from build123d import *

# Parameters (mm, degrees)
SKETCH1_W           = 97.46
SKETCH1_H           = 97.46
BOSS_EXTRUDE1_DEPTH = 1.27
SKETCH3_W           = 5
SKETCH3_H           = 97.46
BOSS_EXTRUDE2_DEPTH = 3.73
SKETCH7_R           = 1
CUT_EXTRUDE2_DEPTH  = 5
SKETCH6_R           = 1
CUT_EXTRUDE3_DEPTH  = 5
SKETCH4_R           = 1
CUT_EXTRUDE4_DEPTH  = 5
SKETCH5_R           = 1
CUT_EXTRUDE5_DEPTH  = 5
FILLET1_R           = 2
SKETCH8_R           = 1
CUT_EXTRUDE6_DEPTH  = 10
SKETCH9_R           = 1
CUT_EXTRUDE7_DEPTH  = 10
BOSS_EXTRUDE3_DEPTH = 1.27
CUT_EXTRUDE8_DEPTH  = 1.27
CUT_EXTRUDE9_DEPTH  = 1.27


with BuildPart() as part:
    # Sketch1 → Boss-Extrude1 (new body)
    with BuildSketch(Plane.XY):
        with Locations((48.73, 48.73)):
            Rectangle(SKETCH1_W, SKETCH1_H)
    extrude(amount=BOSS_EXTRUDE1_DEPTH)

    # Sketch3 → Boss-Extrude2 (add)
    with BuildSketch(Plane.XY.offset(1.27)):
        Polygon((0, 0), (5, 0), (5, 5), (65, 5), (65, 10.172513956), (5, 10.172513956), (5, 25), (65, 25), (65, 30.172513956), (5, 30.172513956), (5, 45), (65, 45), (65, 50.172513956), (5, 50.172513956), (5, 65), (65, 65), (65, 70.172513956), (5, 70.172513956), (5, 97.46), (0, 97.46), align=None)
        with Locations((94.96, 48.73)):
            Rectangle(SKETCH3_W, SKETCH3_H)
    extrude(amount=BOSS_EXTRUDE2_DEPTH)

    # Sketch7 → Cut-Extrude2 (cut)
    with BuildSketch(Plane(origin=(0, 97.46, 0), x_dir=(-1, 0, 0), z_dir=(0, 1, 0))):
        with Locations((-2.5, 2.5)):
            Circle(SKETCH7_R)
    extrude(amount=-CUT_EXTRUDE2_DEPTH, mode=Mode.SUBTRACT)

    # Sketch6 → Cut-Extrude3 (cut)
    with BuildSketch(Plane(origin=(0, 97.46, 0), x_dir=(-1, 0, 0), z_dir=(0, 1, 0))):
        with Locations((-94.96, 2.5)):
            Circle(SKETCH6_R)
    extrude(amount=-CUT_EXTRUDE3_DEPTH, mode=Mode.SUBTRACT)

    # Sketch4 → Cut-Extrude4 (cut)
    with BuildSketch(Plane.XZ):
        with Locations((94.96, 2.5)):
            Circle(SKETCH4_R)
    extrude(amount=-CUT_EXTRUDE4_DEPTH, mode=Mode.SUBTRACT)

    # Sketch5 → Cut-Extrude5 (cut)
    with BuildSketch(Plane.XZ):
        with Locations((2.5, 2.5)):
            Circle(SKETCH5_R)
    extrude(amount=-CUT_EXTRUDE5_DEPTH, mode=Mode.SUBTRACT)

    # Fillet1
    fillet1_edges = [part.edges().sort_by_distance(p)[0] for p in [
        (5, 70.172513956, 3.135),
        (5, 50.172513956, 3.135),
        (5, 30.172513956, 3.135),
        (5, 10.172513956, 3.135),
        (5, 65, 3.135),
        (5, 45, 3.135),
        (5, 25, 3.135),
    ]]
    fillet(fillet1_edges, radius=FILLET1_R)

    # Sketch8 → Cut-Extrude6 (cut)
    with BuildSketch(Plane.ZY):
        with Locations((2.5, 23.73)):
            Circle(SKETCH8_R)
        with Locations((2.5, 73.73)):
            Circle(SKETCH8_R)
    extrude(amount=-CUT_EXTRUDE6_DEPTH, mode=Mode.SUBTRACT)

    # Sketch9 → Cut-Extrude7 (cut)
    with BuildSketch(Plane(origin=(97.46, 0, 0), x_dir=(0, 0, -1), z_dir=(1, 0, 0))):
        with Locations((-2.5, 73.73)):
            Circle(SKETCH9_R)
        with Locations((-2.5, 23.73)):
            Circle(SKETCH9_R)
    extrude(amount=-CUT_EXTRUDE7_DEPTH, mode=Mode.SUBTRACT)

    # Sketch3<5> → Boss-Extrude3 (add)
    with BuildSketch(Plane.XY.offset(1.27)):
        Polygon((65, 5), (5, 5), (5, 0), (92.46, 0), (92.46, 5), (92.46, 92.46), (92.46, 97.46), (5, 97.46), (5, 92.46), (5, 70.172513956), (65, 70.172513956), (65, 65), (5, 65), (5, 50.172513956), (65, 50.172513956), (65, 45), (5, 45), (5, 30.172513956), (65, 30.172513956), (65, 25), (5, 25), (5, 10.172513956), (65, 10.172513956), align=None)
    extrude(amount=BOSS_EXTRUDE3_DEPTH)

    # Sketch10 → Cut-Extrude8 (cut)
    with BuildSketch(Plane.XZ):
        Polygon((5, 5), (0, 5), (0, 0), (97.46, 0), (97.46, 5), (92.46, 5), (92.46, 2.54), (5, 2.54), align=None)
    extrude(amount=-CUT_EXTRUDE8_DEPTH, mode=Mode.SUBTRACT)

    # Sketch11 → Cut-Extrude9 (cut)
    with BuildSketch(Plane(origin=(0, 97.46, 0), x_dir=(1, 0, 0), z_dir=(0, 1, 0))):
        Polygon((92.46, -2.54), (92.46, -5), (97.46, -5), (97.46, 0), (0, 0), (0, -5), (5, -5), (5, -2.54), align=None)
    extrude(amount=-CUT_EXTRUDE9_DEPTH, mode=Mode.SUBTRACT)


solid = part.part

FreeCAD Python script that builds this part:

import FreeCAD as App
import Part
import Sketcher

V = App.Vector
Q = App.Units.Quantity


def edges_at(feature, points):
    """Names of the edges that pass closest to the given points."""
    edges = feature.Shape.Edges
    near = lambda p: min(range(len(edges)), key=lambda i: edges[i].distToShape(Part.Vertex(*p))[0])
    return sorted({f"Edge{near(p) + 1}" for p in points})


def add_polygon(sketch, points):
    """Adds a closed chain of lines whose ends are joined by coincident constraints."""
    first, n = sketch.GeometryCount, len(points)
    for a, b in zip(points, points[1:] + points[:1]):
        sketch.addGeometry(Part.LineSegment(App.Vector(*a, 0), App.Vector(*b, 0)), False)
    for i in range(n):
        sketch.addConstraint(Sketcher.Constraint("Coincident", first + i, 2, first + (i + 1) % n, 1))

doc = App.newDocument("Part")
params = doc.addObject("Spreadsheet::Sheet", "Params")
for row, (alias, value) in enumerate([
    ("sketch1_width", "97.46 mm"),
    ("pad1_length", "1.27 mm"),
    ("sketch2_width", "5 mm"),
    ("sketch2_width2", "60 mm"),
    ("sketch2_height", "97.46 mm"),
    ("pad2_length", "3.73 mm"),
    ("sketch3_diameter", "2 mm"),
    ("pocket1_length", "5 mm"),
    ("sketch4_diameter", "2 mm"),
    ("pocket2_length", "5 mm"),
    ("sketch5_diameter", "2 mm"),
    ("pocket3_length", "5 mm"),
    ("sketch6_diameter", "2 mm"),
    ("pocket4_length", "5 mm"),
    ("fillet_radius", "2 mm"),
    ("sketch7_diameter", "2 mm"),
    ("pocket5_length", "10 mm"),
    ("sketch8_diameter", "2 mm"),
    ("pocket6_length", "10 mm"),
    ("sketch9_width", "60 mm"),
    ("sketch9_height", "5 mm"),
    ("sketch9_width2", "87.46 mm"),
    ("sketch9_height2", "97.46 mm"),
    ("pad3_length", "1.27 mm"),
    ("sketch10_width", "5 mm"),
    ("sketch10_width2", "97.46 mm"),
    ("sketch10_height", "2.46 mm"),
    ("pocket7_length", "1.27 mm"),
    ("sketch11_width", "5 mm"),
    ("sketch11_width2", "97.46 mm"),
    ("sketch11_height", "2.46 mm"),
    ("pocket8_length", "1.27 mm"),
], start=1):
    params.set(f"A{row}", alias)
    params.set(f"B{row}", "=" + value)
    params.setAlias(f"B{row}", alias)

body = doc.addObject("PartDesign::Body", "Body")

sketch1 = body.newObject("Sketcher::SketchObject", "Sketch")
sketch1.AttachmentSupport = (doc.getObject("XY_Plane"), [""])
sketch1.MapMode = "FlatFace"
add_polygon(sketch1, [(0, 97), (0, 0), (97, 0), (97, 97)])
sketch1.addConstraint([
    Sketcher.Constraint("Vertical", 0),
    Sketcher.Constraint("Horizontal", 1),
    Sketcher.Constraint("Vertical", 2),
    Sketcher.Constraint("Horizontal", 3),
    Sketcher.Constraint("Coincident", 0, 2, -1, 1),
    Sketcher.Constraint("Equal", 3, 0),
    Sketcher.Constraint("DistanceX", 1, 1, 1, 2, Q("97.46 mm")),
])
sketch1.setExpression("Constraints[10]", "Params.sketch1_width")
pad1 = body.newObject("PartDesign::Pad", "Pad")
pad1.Profile = sketch1
pad1.setExpression("Length", "Params.pad1_length")

sketch2 = body.newObject("Sketcher::SketchObject", "Sketch001")
sketch2.AttachmentSupport = (doc.getObject("XY_Plane"), [""])
sketch2.MapMode = "FlatFace"
sketch2.AttachmentOffset = App.Placement(V(0, 0, 1.27), App.Rotation())
add_polygon(sketch2, [(0, 0), (5, 0), (5, 5), (65, 5), (65, 10), (5, 10), (5, 25), (65, 25), (65, 30), (5, 30), (5, 45), (65, 45), (65, 50), (5, 50), (5, 65), (65, 65), (65, 70), (5, 70), (5, 97), (0, 97)])
add_polygon(sketch2, [(92, 97), (92, 0), (97, 0), (97, 97)])
sketch2.addConstraint([
    Sketcher.Constraint("Horizontal", 0),
    Sketcher.Constraint("Vertical", 1),
    Sketcher.Constraint("Horizontal", 2),
    Sketcher.Constraint("Vertical", 3),
    Sketcher.Constraint("Horizontal", 4),
    Sketcher.Constraint("Vertical", 5),
    Sketcher.Constraint("Horizontal", 6),
    Sketcher.Constraint("Vertical", 7),
    Sketcher.Constraint("Horizontal", 8),
    Sketcher.Constraint("Vertical", 9),
    Sketcher.Constraint("Horizontal", 10),
    Sketcher.Constraint("Vertical", 11),
    Sketcher.Constraint("Horizontal", 12),
    Sketcher.Constraint("Vertical", 13),
    Sketcher.Constraint("Horizontal", 14),
    Sketcher.Constraint("Vertical", 15),
    Sketcher.Constraint("Horizontal", 16),
    Sketcher.Constraint("Vertical", 17),
    Sketcher.Constraint("Horizontal", 18),
    Sketcher.Constraint("Vertical", 19),
    Sketcher.Constraint("Vertical", 20),
    Sketcher.Constraint("Horizontal", 21),
    Sketcher.Constraint("Vertical", 22),
    Sketcher.Constraint("Horizontal", 23),
    Sketcher.Constraint("Coincident", 19, 2, -1, 1),
    Sketcher.Constraint("PointOnObject", 20, 2, -1),
    Sketcher.Constraint("Horizontal", 18, 2, 22, 2),
    Sketcher.Constraint("Vertical", 1, 2, 4, 2),
    Sketcher.Constraint("Vertical", 3, 2, 6, 2),
    Sketcher.Constraint("Vertical", 5, 2, 8, 2),
    Sketcher.Constraint("Vertical", 7, 2, 10, 2),
    Sketcher.Constraint("Vertical", 9, 2, 12, 2),
    Sketcher.Constraint("Vertical", 11, 2, 14, 2),
    Sketcher.Constraint("Vertical", 13, 2, 16, 2),
    Sketcher.Constraint("Equal", 18, 21),
    Sketcher.Constraint("Equal", 23, 1),
    Sketcher.Constraint("Equal", 3, 7),
    Sketcher.Constraint("Equal", 5, 9),
    Sketcher.Constraint("Equal", 7, 11),
    Sketcher.Constraint("Equal", 9, 13),
    Sketcher.Constraint("Equal", 11, 15),
    Sketcher.Constraint("DistanceX", 0, 1, 0, 2, Q("5 mm")),
    Sketcher.Constraint("DistanceX", 2, 1, 2, 2, Q("60 mm")),
    Sketcher.Constraint("DistanceY", -1, 1, 5, 2, Q("25 mm")),
    Sketcher.Constraint("DistanceY", 19, 2, 19, 1, Q("97.46 mm")),
    Sketcher.Constraint("DistanceX", -1, 1, 20, 2, Q("92.46 mm")),
    Sketcher.Constraint("DistanceY", 3, 1, 3, 2, Q("5.172514 mm")),
])
sketch2.setExpression("Constraints[65]", "Params.sketch2_width")
sketch2.setExpression("Constraints[66]", "Params.sketch2_width2")
sketch2.setExpression("Constraints[68]", "Params.sketch2_height")
pad2 = body.newObject("PartDesign::Pad", "Pad001")
pad2.Profile = sketch2
pad2.setExpression("Length", "Params.pad2_length")

sketch3 = body.newObject("Sketcher::SketchObject", "Sketch002")
sketch3.AttachmentSupport = (doc.getObject("XZ_Plane"), [""])
sketch3.MapMode = "FlatFace"
sketch3.AttachmentOffset = App.Placement(V(0, 0, -97.46), App.Rotation())
sketch3.addGeometry(Part.Circle(V(2.5, 2.5, 0), V(0, 0, 1), 1), False)
sketch3.addConstraint([
    Sketcher.Constraint("Diameter", 0, Q("2 mm")),
    Sketcher.Constraint("DistanceX", -1, 1, 0, 3, Q("2.5 mm")),
    Sketcher.Constraint("DistanceY", -1, 1, 0, 3, Q("2.5 mm")),
])
sketch3.setExpression("Constraints[0]", "Params.sketch3_diameter")
pocket1 = body.newObject("PartDesign::Pocket", "Pocket")
pocket1.Profile = sketch3
pocket1.setExpression("Length", "Params.pocket1_length")
pocket1.Reversed = True

sketch4 = body.newObject("Sketcher::SketchObject", "Sketch003")
sketch4.AttachmentSupport = (doc.getObject("XZ_Plane"), [""])
sketch4.MapMode = "FlatFace"
sketch4.AttachmentOffset = App.Placement(V(0, 0, -97.46), App.Rotation())
sketch4.addGeometry(Part.Circle(V(95, 2.5, 0), V(0, 0, 1), 1), False)
sketch4.addConstraint([
    Sketcher.Constraint("Diameter", 0, Q("2 mm")),
    Sketcher.Constraint("DistanceY", -1, 1, 0, 3, Q("2.5 mm")),
    Sketcher.Constraint("DistanceX", -1, 1, 0, 3, Q("94.96 mm")),
])
sketch4.setExpression("Constraints[0]", "Params.sketch4_diameter")
pocket2 = body.newObject("PartDesign::Pocket", "Pocket001")
pocket2.Profile = sketch4
pocket2.setExpression("Length", "Params.pocket2_length")
pocket2.Reversed = True

sketch5 = body.newObject("Sketcher::SketchObject", "Sketch004")
sketch5.AttachmentSupport = (doc.getObject("XZ_Plane"), [""])
sketch5.MapMode = "FlatFace"
sketch5.addGeometry(Part.Circle(V(95, 2.5, 0), V(0, 0, 1), 1), False)
sketch5.addConstraint([
    Sketcher.Constraint("Diameter", 0, Q("2 mm")),
    Sketcher.Constraint("DistanceY", -1, 1, 0, 3, Q("2.5 mm")),
    Sketcher.Constraint("DistanceX", -1, 1, 0, 3, Q("94.96 mm")),
])
sketch5.setExpression("Constraints[0]", "Params.sketch5_diameter")
pocket3 = body.newObject("PartDesign::Pocket", "Pocket002")
pocket3.Profile = sketch5
pocket3.setExpression("Length", "Params.pocket3_length")

sketch6 = body.newObject("Sketcher::SketchObject", "Sketch005")
sketch6.AttachmentSupport = (doc.getObject("XZ_Plane"), [""])
sketch6.MapMode = "FlatFace"
sketch6.addGeometry(Part.Circle(V(2.5, 2.5, 0), V(0, 0, 1), 1), False)
sketch6.addConstraint([
    Sketcher.Constraint("Diameter", 0, Q("2 mm")),
    Sketcher.Constraint("DistanceX", -1, 1, 0, 3, Q("2.5 mm")),
    Sketcher.Constraint("DistanceY", -1, 1, 0, 3, Q("2.5 mm")),
])
sketch6.setExpression("Constraints[0]", "Params.sketch6_diameter")
pocket4 = body.newObject("PartDesign::Pocket", "Pocket003")
pocket4.Profile = sketch6
pocket4.setExpression("Length", "Params.pocket4_length")
doc.recompute()

fillet = body.newObject("PartDesign::Fillet", "Fillet")
fillet.Base = (pocket4, edges_at(pocket4, [
    (5, 70.173, 3.135),
    (5, 50.173, 3.135),
    (5, 30.173, 3.135),
    (5, 10.173, 3.135),
    (5, 65, 3.135),
    (5, 45, 3.135),
    (5, 25, 3.135),
]))
fillet.setExpression("Radius", "Params.fillet_radius")

sketch7 = body.newObject("Sketcher::SketchObject", "Sketch006")
sketch7.AttachmentSupport = (doc.getObject("YZ_Plane"), [""])
sketch7.MapMode = "FlatFace"
sketch7.addGeometry([
    Part.Circle(V(23.7, 2.5, 0), V(0, 0, 1), 1),
    Part.Circle(V(73.7, 2.5, 0), V(0, 0, 1), 1),
], False)
sketch7.addConstraint([
    Sketcher.Constraint("Equal", 0, 1),
    Sketcher.Constraint("Horizontal", 0, 3, 1, 3),
    Sketcher.Constraint("Diameter", 0, Q("2 mm")),
    Sketcher.Constraint("DistanceX", 0, 3, 1, 3, Q("50 mm")),
    Sketcher.Constraint("DistanceY", -1, 1, 0, 3, Q("2.5 mm")),
    Sketcher.Constraint("DistanceX", -1, 1, 0, 3, Q("23.73 mm")),
])
sketch7.setExpression("Constraints[2]", "Params.sketch7_diameter")
pocket5 = body.newObject("PartDesign::Pocket", "Pocket004")
pocket5.Profile = sketch7
pocket5.setExpression("Length", "Params.pocket5_length")
pocket5.Reversed = True

sketch8 = body.newObject("Sketcher::SketchObject", "Sketch007")
sketch8.AttachmentSupport = (doc.getObject("YZ_Plane"), [""])
sketch8.MapMode = "FlatFace"
sketch8.AttachmentOffset = App.Placement(V(0, 0, 97.46), App.Rotation())
sketch8.addGeometry([
    Part.Circle(V(73.7, 2.5, 0), V(0, 0, 1), 1),
    Part.Circle(V(23.7, 2.5, 0), V(0, 0, 1), 1),
], False)
sketch8.addConstraint([
    Sketcher.Constraint("Equal", 0, 1),
    Sketcher.Constraint("Horizontal", 0, 3, 1, 3),
    Sketcher.Constraint("Diameter", 0, Q("2 mm")),
    Sketcher.Constraint("DistanceX", 1, 3, 0, 3, Q("50 mm")),
    Sketcher.Constraint("DistanceY", -1, 1, 0, 3, Q("2.5 mm")),
    Sketcher.Constraint("DistanceX", -1, 1, 0, 3, Q("73.73 mm")),
])
sketch8.setExpression("Constraints[2]", "Params.sketch8_diameter")
pocket6 = body.newObject("PartDesign::Pocket", "Pocket005")
pocket6.Profile = sketch8
pocket6.setExpression("Length", "Params.pocket6_length")

sketch9 = body.newObject("Sketcher::SketchObject", "Sketch008")
sketch9.AttachmentSupport = (doc.getObject("XY_Plane"), [""])
sketch9.MapMode = "FlatFace"
sketch9.AttachmentOffset = App.Placement(V(0, 0, 1.27), App.Rotation())
add_polygon(sketch9, [(65, 5), (5, 5), (5, 0), (92, 0), (92, 97), (5, 97), (5, 70), (65, 70), (65, 65), (5, 65), (5, 50), (65, 50), (65, 45), (5, 45), (5, 30), (65, 30), (65, 25), (5, 25), (5, 10), (65, 10)])
sketch9.addConstraint([
    Sketcher.Constraint("Horizontal", 0),
    Sketcher.Constraint("Vertical", 1),
    Sketcher.Constraint("Horizontal", 2),
    Sketcher.Constraint("Vertical", 3),
    Sketcher.Constraint("Horizontal", 4),
    Sketcher.Constraint("Vertical", 5),
    Sketcher.Constraint("Horizontal", 6),
    Sketcher.Constraint("Vertical", 7),
    Sketcher.Constraint("Horizontal", 8),
    Sketcher.Constraint("Vertical", 9),
    Sketcher.Constraint("Horizontal", 10),
    Sketcher.Constraint("Vertical", 11),
    Sketcher.Constraint("Horizontal", 12),
    Sketcher.Constraint("Vertical", 13),
    Sketcher.Constraint("Horizontal", 14),
    Sketcher.Constraint("Vertical", 15),
    Sketcher.Constraint("Horizontal", 16),
    Sketcher.Constraint("Vertical", 17),
    Sketcher.Constraint("Horizontal", 18),
    Sketcher.Constraint("Vertical", 19),
    Sketcher.Constraint("PointOnObject", 1, 2, -1),
    Sketcher.Constraint("Vertical", 1, 2, 4, 2),
    Sketcher.Constraint("Vertical", 5, 2, 8, 2),
    Sketcher.Constraint("Vertical", 7, 2, 10, 2),
    Sketcher.Constraint("Vertical", 9, 2, 12, 2),
    Sketcher.Constraint("Vertical", 11, 2, 14, 2),
    Sketcher.Constraint("Vertical", 13, 2, 16, 2),
    Sketcher.Constraint("Vertical", 15, 2, 18, 2),
    Sketcher.Constraint("Equal", 7, 11),
    Sketcher.Constraint("Equal", 9, 13),
    Sketcher.Constraint("Equal", 11, 15),
    Sketcher.Constraint("Equal", 13, 17),
    Sketcher.Constraint("Equal", 15, 19),
    Sketcher.Constraint("DistanceX", 0, 2, 0, 1, Q("60 mm")),
    Sketcher.Constraint("DistanceY", 1, 2, 1, 1, Q("5 mm")),
    Sketcher.Constraint("DistanceX", -1, 1, 0, 2, Q("5 mm")),
    Sketcher.Constraint("DistanceY", -1, 1, 7, 2, Q("65 mm")),
    Sketcher.Constraint("DistanceX", 2, 1, 2, 2, Q("87.46 mm")),
    Sketcher.Constraint("DistanceY", 3, 1, 3, 2, Q("97.46 mm")),
    Sketcher.Constraint("DistanceY", 5, 2, 5, 1, Q("27.287486 mm")),
])
sketch9.setExpression("Constraints[53]", "Params.sketch9_width")
sketch9.setExpression("Constraints[54]", "Params.sketch9_height")
sketch9.setExpression("Constraints[57]", "Params.sketch9_width2")
sketch9.setExpression("Constraints[58]", "Params.sketch9_height2")
pad3 = body.newObject("PartDesign::Pad", "Pad002")
pad3.Profile = sketch9
pad3.setExpression("Length", "Params.pad3_length")

sketch10 = body.newObject("Sketcher::SketchObject", "Sketch009")
sketch10.AttachmentSupport = (doc.getObject("XZ_Plane"), [""])
sketch10.MapMode = "FlatFace"
add_polygon(sketch10, [(5, 5), (0, 5), (0, 0), (97.5, 0), (97.5, 5), (92.5, 5), (92.5, 2.5), (5, 2.5)])
sketch10.addConstraint([
    Sketcher.Constraint("Horizontal", 0),
    Sketcher.Constraint("Vertical", 1),
    Sketcher.Constraint("Horizontal", 2),
    Sketcher.Constraint("Vertical", 3),
    Sketcher.Constraint("Horizontal", 4),
    Sketcher.Constraint("Vertical", 5),
    Sketcher.Constraint("Horizontal", 6),
    Sketcher.Constraint("Vertical", 7),
    Sketcher.Constraint("Coincident", 1, 2, -1, 1),
    Sketcher.Constraint("Horizontal", 0, 2, 3, 2),
    Sketcher.Constraint("Equal", 0, 4),
    Sketcher.Constraint("Equal", 4, 1),
    Sketcher.Constraint("DistanceX", 0, 2, 0, 1, Q("5 mm")),
    Sketcher.Constraint("DistanceX", 2, 1, 2, 2, Q("97.46 mm")),
    Sketcher.Constraint("DistanceY", 5, 2, 5, 1, Q("2.46 mm")),
])
sketch10.setExpression("Constraints[20]", "Params.sketch10_width")
sketch10.setExpression("Constraints[21]", "Params.sketch10_width2")
sketch10.setExpression("Constraints[22]", "Params.sketch10_height")
pocket7 = body.newObject("PartDesign::Pocket", "Pocket006")
pocket7.Profile = sketch10
pocket7.setExpression("Length", "Params.pocket7_length")

sketch11 = body.newObject("Sketcher::SketchObject", "Sketch010")
sketch11.AttachmentSupport = (doc.getObject("XZ_Plane"), [""])
sketch11.MapMode = "FlatFace"
sketch11.AttachmentOffset = App.Placement(V(0, 0, -97.46), App.Rotation())
add_polygon(sketch11, [(92.5, 2.5), (92.5, 5), (97.5, 5), (97.5, 0), (0, 0), (0, 5), (5, 5), (5, 2.5)])
sketch11.addConstraint([
    Sketcher.Constraint("Vertical", 0),
    Sketcher.Constraint("Horizontal", 1),
    Sketcher.Constraint("Vertical", 2),
    Sketcher.Constraint("Horizontal", 3),
    Sketcher.Constraint("Vertical", 4),
    Sketcher.Constraint("Horizontal", 5),
    Sketcher.Constraint("Vertical", 6),
    Sketcher.Constraint("Horizontal", 7),
    Sketcher.Constraint("Coincident", 3, 2, -1, 1),
    Sketcher.Constraint("Horizontal", 1, 2, 4, 2),
    Sketcher.Constraint("Equal", 1, 5),
    Sketcher.Constraint("Equal", 5, 2),
    Sketcher.Constraint("DistanceX", 1, 1, 1, 2, Q("5 mm")),
    Sketcher.Constraint("DistanceX", 3, 2, 3, 1, Q("97.46 mm")),
    Sketcher.Constraint("DistanceY", 0, 1, 0, 2, Q("2.46 mm")),
])
sketch11.setExpression("Constraints[20]", "Params.sketch11_width")
sketch11.setExpression("Constraints[21]", "Params.sketch11_width2")
sketch11.setExpression("Constraints[22]", "Params.sketch11_height")
pocket8 = body.newObject("PartDesign::Pocket", "Pocket007")
pocket8.Profile = sketch11
pocket8.setExpression("Length", "Params.pocket8_length")
pocket8.Reversed = True

doc.recompute()
